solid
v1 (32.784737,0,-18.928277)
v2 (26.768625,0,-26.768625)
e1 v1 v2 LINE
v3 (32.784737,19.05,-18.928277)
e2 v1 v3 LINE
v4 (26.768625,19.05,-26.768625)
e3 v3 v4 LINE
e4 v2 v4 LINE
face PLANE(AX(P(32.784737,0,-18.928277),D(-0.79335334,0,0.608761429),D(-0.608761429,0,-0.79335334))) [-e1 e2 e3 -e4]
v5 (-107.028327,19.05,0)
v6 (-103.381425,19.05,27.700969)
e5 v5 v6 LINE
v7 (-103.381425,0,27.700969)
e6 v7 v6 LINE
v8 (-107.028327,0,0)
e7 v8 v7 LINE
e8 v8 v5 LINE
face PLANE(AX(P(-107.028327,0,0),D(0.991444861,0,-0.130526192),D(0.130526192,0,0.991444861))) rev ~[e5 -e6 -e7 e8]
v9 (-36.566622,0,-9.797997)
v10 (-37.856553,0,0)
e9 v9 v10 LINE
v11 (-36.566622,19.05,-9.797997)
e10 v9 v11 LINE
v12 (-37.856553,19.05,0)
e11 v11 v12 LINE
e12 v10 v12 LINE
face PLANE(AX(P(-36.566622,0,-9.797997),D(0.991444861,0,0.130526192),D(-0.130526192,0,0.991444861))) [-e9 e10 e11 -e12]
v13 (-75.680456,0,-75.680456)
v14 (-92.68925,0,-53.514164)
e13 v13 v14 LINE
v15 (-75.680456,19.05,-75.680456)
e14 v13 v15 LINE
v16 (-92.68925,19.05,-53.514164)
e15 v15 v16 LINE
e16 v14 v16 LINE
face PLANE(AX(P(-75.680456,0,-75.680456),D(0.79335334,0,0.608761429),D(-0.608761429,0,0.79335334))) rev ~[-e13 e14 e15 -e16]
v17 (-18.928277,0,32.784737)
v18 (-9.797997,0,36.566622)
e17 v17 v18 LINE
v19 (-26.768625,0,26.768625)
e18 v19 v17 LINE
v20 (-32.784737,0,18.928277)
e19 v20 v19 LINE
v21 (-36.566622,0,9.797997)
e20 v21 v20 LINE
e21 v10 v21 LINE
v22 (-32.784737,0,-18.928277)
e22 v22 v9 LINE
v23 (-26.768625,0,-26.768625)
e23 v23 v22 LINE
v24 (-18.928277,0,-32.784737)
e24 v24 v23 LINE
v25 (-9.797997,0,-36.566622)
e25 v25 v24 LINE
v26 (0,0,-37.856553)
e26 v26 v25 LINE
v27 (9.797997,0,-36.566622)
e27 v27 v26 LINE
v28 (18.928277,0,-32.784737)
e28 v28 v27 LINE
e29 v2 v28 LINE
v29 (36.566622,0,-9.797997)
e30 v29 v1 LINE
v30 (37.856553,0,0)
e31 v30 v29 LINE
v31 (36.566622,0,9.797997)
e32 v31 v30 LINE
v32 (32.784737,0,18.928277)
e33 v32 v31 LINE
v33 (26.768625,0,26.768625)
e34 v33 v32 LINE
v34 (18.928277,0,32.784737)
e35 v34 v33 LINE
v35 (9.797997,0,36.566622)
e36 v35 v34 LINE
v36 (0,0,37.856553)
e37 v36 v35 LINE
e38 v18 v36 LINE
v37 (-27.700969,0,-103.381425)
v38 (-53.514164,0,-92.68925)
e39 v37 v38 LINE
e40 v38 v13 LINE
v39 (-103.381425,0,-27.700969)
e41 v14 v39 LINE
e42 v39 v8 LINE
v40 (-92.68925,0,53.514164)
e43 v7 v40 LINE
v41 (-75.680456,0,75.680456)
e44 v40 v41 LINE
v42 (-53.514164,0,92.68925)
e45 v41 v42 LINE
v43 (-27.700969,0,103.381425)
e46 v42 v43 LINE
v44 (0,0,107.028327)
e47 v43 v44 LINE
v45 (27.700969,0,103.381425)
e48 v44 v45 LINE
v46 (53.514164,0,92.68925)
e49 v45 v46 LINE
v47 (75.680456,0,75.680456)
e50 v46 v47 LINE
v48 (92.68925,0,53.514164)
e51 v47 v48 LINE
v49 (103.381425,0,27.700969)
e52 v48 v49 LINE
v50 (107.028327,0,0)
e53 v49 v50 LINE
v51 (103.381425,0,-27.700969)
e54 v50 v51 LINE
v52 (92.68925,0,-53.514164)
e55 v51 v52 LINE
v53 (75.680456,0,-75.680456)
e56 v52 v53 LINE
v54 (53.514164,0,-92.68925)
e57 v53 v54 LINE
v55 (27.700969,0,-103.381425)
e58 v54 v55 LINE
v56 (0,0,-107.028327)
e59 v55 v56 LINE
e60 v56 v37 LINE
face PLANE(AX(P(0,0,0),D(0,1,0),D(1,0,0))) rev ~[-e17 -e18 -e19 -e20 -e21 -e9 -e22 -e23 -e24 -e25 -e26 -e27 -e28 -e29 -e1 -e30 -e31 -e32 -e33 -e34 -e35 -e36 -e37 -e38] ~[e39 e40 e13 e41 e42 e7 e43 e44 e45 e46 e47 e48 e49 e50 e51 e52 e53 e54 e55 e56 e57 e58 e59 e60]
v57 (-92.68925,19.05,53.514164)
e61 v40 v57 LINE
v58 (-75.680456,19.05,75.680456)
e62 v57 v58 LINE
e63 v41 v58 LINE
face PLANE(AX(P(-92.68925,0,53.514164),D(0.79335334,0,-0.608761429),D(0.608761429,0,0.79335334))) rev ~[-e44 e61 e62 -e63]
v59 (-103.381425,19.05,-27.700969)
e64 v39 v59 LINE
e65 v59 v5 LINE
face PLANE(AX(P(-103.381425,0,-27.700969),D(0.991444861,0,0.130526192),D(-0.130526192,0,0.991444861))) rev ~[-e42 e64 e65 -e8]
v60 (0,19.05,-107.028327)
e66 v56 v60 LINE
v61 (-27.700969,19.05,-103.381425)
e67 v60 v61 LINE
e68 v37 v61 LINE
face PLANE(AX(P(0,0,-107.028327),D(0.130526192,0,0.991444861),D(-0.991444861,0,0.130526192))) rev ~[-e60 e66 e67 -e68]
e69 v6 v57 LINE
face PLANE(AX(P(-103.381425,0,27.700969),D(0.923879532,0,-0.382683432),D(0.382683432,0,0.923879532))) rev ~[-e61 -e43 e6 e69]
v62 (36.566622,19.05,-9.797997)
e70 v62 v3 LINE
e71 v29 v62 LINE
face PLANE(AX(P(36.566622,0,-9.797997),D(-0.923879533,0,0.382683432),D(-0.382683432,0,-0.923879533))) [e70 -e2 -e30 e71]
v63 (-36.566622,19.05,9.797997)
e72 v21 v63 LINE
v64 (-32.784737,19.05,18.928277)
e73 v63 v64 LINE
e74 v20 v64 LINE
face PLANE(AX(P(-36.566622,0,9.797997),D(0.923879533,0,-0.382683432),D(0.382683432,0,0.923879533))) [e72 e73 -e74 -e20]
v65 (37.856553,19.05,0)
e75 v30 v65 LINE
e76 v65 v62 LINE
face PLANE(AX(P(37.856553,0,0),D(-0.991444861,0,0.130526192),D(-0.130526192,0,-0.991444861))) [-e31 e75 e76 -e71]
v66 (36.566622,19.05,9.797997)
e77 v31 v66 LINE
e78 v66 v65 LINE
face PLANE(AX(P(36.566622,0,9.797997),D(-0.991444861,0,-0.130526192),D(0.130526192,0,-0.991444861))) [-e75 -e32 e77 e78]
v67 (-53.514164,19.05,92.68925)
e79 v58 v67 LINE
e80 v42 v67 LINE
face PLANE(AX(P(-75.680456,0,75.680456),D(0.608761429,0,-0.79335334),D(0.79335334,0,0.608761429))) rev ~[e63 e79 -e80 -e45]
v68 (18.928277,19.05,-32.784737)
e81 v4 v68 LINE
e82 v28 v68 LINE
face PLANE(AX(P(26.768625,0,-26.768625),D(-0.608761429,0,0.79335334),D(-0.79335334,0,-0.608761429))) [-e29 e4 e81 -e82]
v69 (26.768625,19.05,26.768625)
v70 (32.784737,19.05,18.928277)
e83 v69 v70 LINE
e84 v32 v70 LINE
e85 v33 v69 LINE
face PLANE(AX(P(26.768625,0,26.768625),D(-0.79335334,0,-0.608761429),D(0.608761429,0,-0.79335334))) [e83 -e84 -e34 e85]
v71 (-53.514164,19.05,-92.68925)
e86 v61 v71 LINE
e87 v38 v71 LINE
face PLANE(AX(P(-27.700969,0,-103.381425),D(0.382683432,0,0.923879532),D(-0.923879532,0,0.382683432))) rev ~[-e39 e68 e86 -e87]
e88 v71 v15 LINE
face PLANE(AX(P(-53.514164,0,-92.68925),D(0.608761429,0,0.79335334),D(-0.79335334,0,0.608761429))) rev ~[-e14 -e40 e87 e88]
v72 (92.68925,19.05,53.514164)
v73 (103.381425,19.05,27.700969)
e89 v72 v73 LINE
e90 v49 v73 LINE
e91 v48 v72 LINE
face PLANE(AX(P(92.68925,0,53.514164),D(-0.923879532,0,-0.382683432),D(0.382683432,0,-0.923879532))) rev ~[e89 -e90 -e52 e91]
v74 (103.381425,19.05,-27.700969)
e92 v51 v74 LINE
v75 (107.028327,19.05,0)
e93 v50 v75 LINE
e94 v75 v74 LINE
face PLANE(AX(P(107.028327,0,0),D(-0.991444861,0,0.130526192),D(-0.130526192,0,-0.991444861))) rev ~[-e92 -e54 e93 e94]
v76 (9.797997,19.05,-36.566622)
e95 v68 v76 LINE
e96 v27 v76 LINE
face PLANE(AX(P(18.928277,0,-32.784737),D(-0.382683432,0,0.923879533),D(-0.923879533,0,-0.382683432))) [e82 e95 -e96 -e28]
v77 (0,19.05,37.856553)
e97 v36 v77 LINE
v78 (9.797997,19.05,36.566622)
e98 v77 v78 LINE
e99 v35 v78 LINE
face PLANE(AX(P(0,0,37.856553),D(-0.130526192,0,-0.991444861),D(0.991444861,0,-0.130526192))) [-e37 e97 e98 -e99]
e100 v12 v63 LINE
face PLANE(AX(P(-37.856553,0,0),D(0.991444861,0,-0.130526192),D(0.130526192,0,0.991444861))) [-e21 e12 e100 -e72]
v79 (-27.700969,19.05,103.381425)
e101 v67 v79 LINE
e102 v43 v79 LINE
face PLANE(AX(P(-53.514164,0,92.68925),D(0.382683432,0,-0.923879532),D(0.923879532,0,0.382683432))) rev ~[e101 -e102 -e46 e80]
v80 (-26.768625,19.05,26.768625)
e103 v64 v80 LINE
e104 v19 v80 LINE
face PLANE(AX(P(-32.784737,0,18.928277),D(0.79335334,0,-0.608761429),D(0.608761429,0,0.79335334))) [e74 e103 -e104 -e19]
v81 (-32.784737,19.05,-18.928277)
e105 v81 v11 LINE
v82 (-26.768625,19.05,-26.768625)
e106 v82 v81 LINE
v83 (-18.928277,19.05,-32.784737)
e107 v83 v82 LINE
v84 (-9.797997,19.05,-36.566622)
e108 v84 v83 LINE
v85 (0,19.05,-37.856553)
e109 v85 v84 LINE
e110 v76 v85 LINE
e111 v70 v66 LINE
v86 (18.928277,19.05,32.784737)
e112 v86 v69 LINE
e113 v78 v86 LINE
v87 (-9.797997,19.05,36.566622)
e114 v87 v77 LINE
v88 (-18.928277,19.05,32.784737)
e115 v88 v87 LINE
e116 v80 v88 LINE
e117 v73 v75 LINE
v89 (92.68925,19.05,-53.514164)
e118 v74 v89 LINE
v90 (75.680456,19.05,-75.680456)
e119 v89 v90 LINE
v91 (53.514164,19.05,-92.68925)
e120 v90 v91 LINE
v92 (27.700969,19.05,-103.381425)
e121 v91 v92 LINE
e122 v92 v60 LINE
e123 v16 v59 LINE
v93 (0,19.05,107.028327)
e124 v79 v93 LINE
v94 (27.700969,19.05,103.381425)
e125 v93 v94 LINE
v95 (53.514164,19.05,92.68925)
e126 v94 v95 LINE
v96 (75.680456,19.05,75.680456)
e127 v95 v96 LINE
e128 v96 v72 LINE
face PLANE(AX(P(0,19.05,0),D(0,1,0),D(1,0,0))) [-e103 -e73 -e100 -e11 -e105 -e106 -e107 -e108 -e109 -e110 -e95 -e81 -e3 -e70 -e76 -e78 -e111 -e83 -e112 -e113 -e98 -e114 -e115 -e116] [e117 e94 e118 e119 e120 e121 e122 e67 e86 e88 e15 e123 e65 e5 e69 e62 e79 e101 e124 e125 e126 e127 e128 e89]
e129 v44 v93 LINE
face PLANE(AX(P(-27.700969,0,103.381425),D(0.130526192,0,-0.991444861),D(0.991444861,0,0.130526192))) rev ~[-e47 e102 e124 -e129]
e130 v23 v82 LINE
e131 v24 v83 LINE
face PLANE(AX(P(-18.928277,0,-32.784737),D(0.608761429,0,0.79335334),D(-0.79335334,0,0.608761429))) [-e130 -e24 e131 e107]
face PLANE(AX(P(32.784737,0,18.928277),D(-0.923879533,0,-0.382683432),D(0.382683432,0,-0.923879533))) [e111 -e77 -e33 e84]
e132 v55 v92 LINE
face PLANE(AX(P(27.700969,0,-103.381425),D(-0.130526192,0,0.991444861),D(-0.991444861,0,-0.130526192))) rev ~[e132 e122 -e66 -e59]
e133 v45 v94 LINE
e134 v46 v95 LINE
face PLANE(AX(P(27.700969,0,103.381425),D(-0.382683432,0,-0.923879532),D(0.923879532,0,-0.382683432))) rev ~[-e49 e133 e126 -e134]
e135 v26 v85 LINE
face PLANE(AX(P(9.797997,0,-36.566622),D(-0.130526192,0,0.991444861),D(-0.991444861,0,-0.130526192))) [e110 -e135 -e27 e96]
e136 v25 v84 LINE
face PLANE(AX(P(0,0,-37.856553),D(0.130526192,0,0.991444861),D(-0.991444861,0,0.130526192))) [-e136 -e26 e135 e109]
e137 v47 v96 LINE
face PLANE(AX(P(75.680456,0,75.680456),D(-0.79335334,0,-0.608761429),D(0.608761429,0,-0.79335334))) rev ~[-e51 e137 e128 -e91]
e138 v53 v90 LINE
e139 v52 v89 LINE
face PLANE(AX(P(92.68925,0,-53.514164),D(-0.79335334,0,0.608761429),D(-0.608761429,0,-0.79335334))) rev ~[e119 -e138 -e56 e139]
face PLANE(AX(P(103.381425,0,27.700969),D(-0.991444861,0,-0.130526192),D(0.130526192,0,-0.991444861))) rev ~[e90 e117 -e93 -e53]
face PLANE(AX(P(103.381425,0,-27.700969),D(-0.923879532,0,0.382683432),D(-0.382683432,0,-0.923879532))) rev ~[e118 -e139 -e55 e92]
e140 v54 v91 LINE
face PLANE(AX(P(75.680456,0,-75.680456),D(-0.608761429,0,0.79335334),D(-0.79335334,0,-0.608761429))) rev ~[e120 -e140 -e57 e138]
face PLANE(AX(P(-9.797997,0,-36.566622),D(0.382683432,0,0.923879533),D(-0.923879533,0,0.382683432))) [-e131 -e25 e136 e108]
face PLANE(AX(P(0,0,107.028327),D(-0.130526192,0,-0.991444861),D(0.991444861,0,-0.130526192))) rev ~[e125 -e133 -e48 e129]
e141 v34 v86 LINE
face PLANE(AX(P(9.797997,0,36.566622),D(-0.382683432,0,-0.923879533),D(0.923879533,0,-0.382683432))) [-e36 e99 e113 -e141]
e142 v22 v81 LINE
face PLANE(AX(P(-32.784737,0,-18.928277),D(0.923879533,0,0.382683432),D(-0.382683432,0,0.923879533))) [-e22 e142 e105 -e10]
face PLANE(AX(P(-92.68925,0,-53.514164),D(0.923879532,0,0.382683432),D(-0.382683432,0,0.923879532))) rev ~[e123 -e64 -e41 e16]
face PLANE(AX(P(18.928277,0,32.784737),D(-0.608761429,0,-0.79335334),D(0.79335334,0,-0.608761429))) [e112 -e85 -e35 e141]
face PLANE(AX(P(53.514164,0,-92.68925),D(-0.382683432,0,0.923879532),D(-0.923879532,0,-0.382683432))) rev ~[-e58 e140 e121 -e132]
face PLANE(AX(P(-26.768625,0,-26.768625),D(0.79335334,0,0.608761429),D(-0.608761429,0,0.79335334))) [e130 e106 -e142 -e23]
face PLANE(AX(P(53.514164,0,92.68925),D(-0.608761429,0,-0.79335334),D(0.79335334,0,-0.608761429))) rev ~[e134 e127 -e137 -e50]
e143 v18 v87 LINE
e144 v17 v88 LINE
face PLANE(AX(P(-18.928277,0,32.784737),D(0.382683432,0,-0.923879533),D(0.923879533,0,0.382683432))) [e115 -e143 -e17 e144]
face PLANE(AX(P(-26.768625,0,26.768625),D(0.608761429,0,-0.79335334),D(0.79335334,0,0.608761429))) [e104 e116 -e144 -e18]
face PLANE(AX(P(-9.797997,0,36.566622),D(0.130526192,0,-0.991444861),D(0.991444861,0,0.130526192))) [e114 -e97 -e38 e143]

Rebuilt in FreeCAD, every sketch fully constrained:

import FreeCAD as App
import Part
import Sketcher
Q = App.Units.Quantity


def add_polygon(sketch, points):
    """Adds a closed chain of lines whose ends are joined by coincident constraints."""
    first, n = sketch.GeometryCount, len(points)
    for a, b in zip(points, points[1:] + points[:1]):
        sketch.addGeometry(Part.LineSegment(App.Vector(*a, 0), App.Vector(*b, 0)), False)
    for i in range(n):
        sketch.addConstraint(Sketcher.Constraint("Coincident", first + i, 2, first + (i + 1) % n, 1))

doc = App.newDocument("Part")
body = doc.addObject("PartDesign::Body", "Body")

# Sketch on XZ plane
sketch1 = body.newObject("Sketcher::SketchObject", "Sketch")
sketch1.AttachmentSupport = (doc.getObject("XZ_Plane"), [""])
sketch1.MapMode = "FlatFace"
add_polygon(sketch1, [(-107, 0), (-103, 28), (-93, 54), (-76, 76), (-54, 93), (-28, 103), (0, 107), (28, 103), (54, 93), (76, 76), (93, 54), (103, 28), (107, 0), (103, -28), (93, -54), (76, -76), (54, -93), (28, -103), (0, -107), (-28, -103), (-54, -93), (-76, -76), (-93, -54), (-103, -28)])  # lines 0-23
add_polygon(sketch1, [(-37, 10), (-38, 0), (-37, -10), (-33, -19), (-27, -27), (-19, -33), (-10, -37), (0, -38), (10, -37), (19, -33), (27, -27), (33, -19), (37, -10), (38, 0), (37, 10), (33, 19), (27, 27), (19, 33), (10, 37), (0, 38), (-10, 37), (-19, 33), (-27, 27), (-33, 19)])  # lines 24-47
sketch1.addConstraint(Sketcher.Constraint("Symmetric", 0, 2, 12, 2, -1, 1))
sketch1.addConstraint(Sketcher.Constraint("Symmetric", 1, 2, 13, 2, -1, 1))
sketch1.addConstraint(Sketcher.Constraint("Symmetric", 2, 2, 14, 2, -1, 1))
sketch1.addConstraint(Sketcher.Constraint("Symmetric", 3, 2, 15, 2, -1, 1))
sketch1.addConstraint(Sketcher.Constraint("Symmetric", 4, 2, 16, 2, -1, 1))
sketch1.addConstraint(Sketcher.Constraint("Symmetric", 5, 2, 17, 2, -1, 1))
sketch1.addConstraint(Sketcher.Constraint("Symmetric", 6, 2, 18, 2, -1, 1))
sketch1.addConstraint(Sketcher.Constraint("Symmetric", 7, 2, 19, 2, -1, 1))
sketch1.addConstraint(Sketcher.Constraint("Symmetric", 8, 2, 20, 2, -1, 1))
sketch1.addConstraint(Sketcher.Constraint("Symmetric", 9, 2, 21, 2, -1, 1))
sketch1.addConstraint(Sketcher.Constraint("Symmetric", 10, 2, 22, 2, -1, 1))
sketch1.addConstraint(Sketcher.Constraint("Symmetric", 11, 2, 23, 2, -1, 1))
sketch1.addConstraint(Sketcher.Constraint("Symmetric", 24, 2, 36, 2, -1, 1))
sketch1.addConstraint(Sketcher.Constraint("Symmetric", 25, 2, 37, 2, -1, 1))
sketch1.addConstraint(Sketcher.Constraint("Symmetric", 26, 2, 38, 2, -1, 1))
sketch1.addConstraint(Sketcher.Constraint("Symmetric", 27, 2, 39, 2, -1, 1))
sketch1.addConstraint(Sketcher.Constraint("Symmetric", 28, 2, 40, 2, -1, 1))
sketch1.addConstraint(Sketcher.Constraint("Symmetric", 29, 2, 41, 2, -1, 1))
sketch1.addConstraint(Sketcher.Constraint("Symmetric", 30, 2, 42, 2, -1, 1))
sketch1.addConstraint(Sketcher.Constraint("Symmetric", 31, 2, 43, 2, -1, 1))
sketch1.addConstraint(Sketcher.Constraint("Symmetric", 32, 2, 44, 2, -1, 1))
sketch1.addConstraint(Sketcher.Constraint("Symmetric", 33, 2, 45, 2, -1, 1))
sketch1.addConstraint(Sketcher.Constraint("Symmetric", 34, 2, 46, 2, -1, 1))
sketch1.addConstraint(Sketcher.Constraint("Symmetric", 35, 2, 47, 2, -1, 1))
sketch1.addConstraint(Sketcher.Constraint("Symmetric", 4, 2, 6, 2, -2))
sketch1.addConstraint(Sketcher.Constraint("Symmetric", 3, 2, 7, 2, -2))
sketch1.addConstraint(Sketcher.Constraint("Symmetric", 2, 2, 8, 2, -2))
sketch1.addConstraint(Sketcher.Constraint("Symmetric", 1, 2, 9, 2, -2))
sketch1.addConstraint(Sketcher.Constraint("Symmetric", 0, 2, 10, 2, -2))
sketch1.addConstraint(Sketcher.Constraint("Symmetric", 29, 2, 31, 2, -2))
sketch1.addConstraint(Sketcher.Constraint("Symmetric", 28, 2, 32, 2, -2))
sketch1.addConstraint(Sketcher.Constraint("Symmetric", 27, 2, 33, 2, -2))
sketch1.addConstraint(Sketcher.Constraint("Symmetric", 26, 2, 34, 2, -2))
sketch1.addConstraint(Sketcher.Constraint("Symmetric", 25, 2, 35, 2, -2))
sketch1.addConstraint(Sketcher.Constraint("PointOnObject", 5, 2, -2))
sketch1.addConstraint(Sketcher.Constraint("PointOnObject", 11, 2, -1))
sketch1.addConstraint(Sketcher.Constraint("PointOnObject", 24, 2, -1))
sketch1.addConstraint(Sketcher.Constraint("PointOnObject", 30, 2, -2))
sketch1.addConstraint(Sketcher.Constraint("Perpendicular", 0, 6))
sketch1.addConstraint(Sketcher.Constraint("Perpendicular", 1, 7))
sketch1.addConstraint(Sketcher.Constraint("Perpendicular", 2, 8))
sketch1.addConstraint(Sketcher.Constraint("Perpendicular", 18, 24))
sketch1.addConstraint(Sketcher.Constraint("Parallel", 22, 26))
sketch1.addConstraint(Sketcher.Constraint("Parallel", 21, 27))
sketch1.addConstraint(Sketcher.Constraint("Parallel", 20, 28))
sketch1.addConstraint(Sketcher.Constraint("Parallel", 19, 29))
sketch1.addConstraint(Sketcher.Constraint("Perpendicular", 24, 30))
sketch1.addConstraint(Sketcher.Constraint("Equal", 0, 1))
sketch1.addConstraint(Sketcher.Constraint("Equal", 1, 2))
sketch1.addConstraint(Sketcher.Constraint("Equal", 2, 3))
sketch1.addConstraint(Sketcher.Constraint("Equal", 3, 4))
sketch1.addConstraint(Sketcher.Constraint("Equal", 4, 5))
sketch1.addConstraint(Sketcher.Constraint("Equal", 25, 26))
sketch1.addConstraint(Sketcher.Constraint("Equal", 26, 27))
sketch1.addConstraint(Sketcher.Constraint("Equal", 27, 28))
sketch1.addConstraint(Sketcher.Constraint("Equal", 28, 29))
sketch1.addConstraint(Sketcher.Constraint("Equal", 29, 30))
sketch1.addConstraint(Sketcher.Constraint("Distance", 0, Q("1.1 in")))
sketch1.addConstraint(Sketcher.Constraint("Angle", 0, Q("82.5 deg")))
sketch1.addConstraint(Sketcher.Constraint("Angle", 1, Q("67.5 deg")))
sketch1.addConstraint(Sketcher.Constraint("Angle", 2, Q("52.5 deg")))
sketch1.addConstraint(Sketcher.Constraint("DistanceY", 19, 2, 27, 2, Q("2.5953002 in")))
pad1 = body.newObject("PartDesign::Pad", "Pad")
pad1.Profile = sketch1
pad1.Length = Q("0.75 in")
pad1.Reversed = True

doc.recompute()
